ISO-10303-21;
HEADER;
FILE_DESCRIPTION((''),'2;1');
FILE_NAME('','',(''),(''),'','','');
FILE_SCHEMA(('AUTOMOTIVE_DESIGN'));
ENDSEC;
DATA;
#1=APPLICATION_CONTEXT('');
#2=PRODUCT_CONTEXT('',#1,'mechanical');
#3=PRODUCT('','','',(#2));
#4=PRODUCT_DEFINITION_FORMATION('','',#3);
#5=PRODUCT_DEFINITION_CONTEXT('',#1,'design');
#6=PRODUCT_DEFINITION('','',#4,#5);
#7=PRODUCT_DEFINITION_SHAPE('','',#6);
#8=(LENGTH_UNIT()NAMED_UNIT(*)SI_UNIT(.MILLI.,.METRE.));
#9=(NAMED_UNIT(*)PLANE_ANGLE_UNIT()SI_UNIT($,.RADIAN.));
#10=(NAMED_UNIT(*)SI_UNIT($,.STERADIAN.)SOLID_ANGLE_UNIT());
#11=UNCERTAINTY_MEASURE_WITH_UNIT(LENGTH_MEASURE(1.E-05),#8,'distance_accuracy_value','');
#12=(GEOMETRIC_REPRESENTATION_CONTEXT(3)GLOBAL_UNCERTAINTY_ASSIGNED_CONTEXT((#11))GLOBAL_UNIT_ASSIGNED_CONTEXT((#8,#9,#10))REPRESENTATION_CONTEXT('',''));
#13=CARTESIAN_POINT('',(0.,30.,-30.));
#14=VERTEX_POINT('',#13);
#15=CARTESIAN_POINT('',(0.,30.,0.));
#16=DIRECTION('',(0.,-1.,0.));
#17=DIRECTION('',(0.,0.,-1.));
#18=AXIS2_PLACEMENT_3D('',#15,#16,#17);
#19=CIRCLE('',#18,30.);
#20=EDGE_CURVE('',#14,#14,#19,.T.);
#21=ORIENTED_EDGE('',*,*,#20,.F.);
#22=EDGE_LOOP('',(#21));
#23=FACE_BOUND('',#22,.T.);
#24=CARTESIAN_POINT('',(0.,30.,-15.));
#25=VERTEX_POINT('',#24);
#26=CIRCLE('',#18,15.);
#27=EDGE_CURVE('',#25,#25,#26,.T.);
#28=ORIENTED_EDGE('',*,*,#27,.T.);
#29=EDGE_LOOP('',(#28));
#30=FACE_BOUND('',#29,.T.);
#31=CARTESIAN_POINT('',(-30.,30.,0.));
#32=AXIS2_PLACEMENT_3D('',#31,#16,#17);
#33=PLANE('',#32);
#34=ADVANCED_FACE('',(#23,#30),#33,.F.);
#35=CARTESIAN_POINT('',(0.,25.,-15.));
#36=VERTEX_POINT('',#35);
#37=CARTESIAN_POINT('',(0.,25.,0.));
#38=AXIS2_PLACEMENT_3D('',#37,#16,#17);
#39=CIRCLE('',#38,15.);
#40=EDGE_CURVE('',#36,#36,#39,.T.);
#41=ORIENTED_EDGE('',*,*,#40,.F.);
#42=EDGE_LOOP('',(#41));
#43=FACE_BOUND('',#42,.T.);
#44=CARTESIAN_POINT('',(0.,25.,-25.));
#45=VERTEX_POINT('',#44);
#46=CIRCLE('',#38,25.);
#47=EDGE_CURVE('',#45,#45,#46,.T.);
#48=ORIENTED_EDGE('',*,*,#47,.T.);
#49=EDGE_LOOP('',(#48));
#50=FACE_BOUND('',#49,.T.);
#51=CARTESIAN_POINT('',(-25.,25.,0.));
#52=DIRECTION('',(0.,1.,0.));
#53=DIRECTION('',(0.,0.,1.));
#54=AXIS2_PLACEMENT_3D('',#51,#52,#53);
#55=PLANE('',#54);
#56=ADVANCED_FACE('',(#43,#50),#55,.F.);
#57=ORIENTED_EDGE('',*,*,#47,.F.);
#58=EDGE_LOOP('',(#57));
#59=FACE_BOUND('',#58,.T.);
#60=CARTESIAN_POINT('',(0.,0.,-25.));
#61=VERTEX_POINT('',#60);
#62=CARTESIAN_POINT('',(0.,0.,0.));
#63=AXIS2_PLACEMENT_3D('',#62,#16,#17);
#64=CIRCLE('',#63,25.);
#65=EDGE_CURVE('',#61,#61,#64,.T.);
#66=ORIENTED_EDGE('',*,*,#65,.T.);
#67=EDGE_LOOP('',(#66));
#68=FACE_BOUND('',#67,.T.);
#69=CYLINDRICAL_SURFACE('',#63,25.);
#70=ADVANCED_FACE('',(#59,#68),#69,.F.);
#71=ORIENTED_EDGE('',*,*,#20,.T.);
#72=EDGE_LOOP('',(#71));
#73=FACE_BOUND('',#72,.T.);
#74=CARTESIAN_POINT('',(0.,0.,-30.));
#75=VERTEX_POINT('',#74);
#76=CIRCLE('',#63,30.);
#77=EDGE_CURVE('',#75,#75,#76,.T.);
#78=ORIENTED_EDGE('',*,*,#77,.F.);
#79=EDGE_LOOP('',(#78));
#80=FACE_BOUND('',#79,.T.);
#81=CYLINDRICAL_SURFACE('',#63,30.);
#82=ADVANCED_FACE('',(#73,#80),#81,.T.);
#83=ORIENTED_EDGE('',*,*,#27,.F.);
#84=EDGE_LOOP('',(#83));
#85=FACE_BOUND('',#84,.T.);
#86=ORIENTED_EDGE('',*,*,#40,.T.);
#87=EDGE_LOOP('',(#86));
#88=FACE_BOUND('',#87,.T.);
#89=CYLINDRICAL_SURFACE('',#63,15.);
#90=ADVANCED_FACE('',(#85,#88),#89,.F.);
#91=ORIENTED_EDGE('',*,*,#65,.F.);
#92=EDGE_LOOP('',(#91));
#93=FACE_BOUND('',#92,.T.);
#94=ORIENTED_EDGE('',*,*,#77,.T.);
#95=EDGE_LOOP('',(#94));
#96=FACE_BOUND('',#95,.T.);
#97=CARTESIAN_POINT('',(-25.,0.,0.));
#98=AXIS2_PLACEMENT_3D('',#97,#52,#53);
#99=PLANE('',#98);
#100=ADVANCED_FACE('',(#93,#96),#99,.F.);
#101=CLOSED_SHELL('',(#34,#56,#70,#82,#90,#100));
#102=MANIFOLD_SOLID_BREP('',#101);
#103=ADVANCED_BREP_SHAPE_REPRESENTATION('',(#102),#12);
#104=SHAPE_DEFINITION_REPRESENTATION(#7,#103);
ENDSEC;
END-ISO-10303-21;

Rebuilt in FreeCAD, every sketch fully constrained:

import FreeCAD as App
import Part
import Sketcher
Q = App.Units.Quantity


def add_polygon(sketch, points):
    """Adds a closed chain of lines whose ends are joined by coincident constraints."""
    first, n = sketch.GeometryCount, len(points)
    for a, b in zip(points, points[1:] + points[:1]):
        sketch.addGeometry(Part.LineSegment(App.Vector(*a, 0), App.Vector(*b, 0)), False)
    for i in range(n):
        sketch.addConstraint(Sketcher.Constraint("Coincident", first + i, 2, first + (i + 1) % n, 1))

doc = App.newDocument("Part")
params = doc.addObject("Spreadsheet::Sheet", "Params")
for row, (alias, value) in enumerate([
    ("sketch1_width", "5 mm"),
    ("sketch1_width2", "10 mm"),
    ("sketch1_height", "25 mm"),
    ("revolution_angle", "360 deg"),
], start=1):
    params.set(f"A{row}", alias)
    params.set(f"B{row}", "=" + value)
    params.setAlias(f"B{row}", alias)

body = doc.addObject("PartDesign::Body", "Body")

sketch1 = doc.addObject("Sketcher::SketchObject", "Sketch")
body.addObject(sketch1)
sketch1.AttachmentSupport = (doc.XY_Plane, [""])
sketch1.MapMode = "FlatFace"
add_polygon(sketch1, [(-30, 0), (-25, 0), (-25, 25), (-15, 25), (-15, 30), (-30, 30)])
sketch1.addConstraint([
    Sketcher.Constraint("Horizontal", 0),
    Sketcher.Constraint("Vertical", 1),
    Sketcher.Constraint("Horizontal", 2),
    Sketcher.Constraint("Vertical", 3),
    Sketcher.Constraint("Horizontal", 4),
    Sketcher.Constraint("Vertical", 5),
    Sketcher.Constraint("PointOnObject", 0, 2, -1),
    Sketcher.Constraint("Equal", 0, 3),
    Sketcher.Constraint("DistanceX", 0, 1, 0, 2, Q("5 mm")),
    Sketcher.Constraint("DistanceX", 2, 1, 2, 2, Q("10 mm")),
    Sketcher.Constraint("DistanceY", 1, 1, 1, 2, Q("25 mm")),
    Sketcher.Constraint("DistanceX", 0, 2, -1, 1, Q("25 mm")),
])
sketch1.setExpression("Constraints[14]", "Params.sketch1_width")
sketch1.setExpression("Constraints[15]", "Params.sketch1_width2")
sketch1.setExpression("Constraints[16]", "Params.sketch1_height")
revolution = doc.addObject("PartDesign::Revolution", "Revolution")
body.addObject(revolution)
revolution.Profile = sketch1
revolution.ReferenceAxis = (sketch1, ["V_Axis"])
revolution.setExpression("Angle", "Params.revolution_angle")

doc.recompute()
